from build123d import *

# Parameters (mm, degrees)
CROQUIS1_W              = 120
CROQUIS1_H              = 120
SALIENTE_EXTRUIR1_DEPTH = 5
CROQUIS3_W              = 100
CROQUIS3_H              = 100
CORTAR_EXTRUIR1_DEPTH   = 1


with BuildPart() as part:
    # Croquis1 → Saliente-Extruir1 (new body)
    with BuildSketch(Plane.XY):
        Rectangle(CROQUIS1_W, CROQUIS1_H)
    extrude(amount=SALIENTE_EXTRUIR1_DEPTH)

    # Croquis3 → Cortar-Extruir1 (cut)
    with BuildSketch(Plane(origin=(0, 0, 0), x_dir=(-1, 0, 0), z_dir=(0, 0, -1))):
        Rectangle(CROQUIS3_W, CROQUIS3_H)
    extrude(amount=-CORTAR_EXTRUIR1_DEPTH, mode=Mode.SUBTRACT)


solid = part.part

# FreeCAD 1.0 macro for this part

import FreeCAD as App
import Part
import Sketcher


def add_polygon(sketch, points):
    """Adds a closed chain of lines whose ends are joined by coincident constraints."""
    first, n = sketch.GeometryCount, len(points)
    for a, b in zip(points, points[1:] + points[:1]):
        sketch.addGeometry(Part.LineSegment(App.Vector(*a, 0), App.Vector(*b, 0)), False)
    for i in range(n):
        sketch.addConstraint(Sketcher.Constraint("Coincident", first + i, 2, first + (i + 1) % n, 1))

doc = App.newDocument("Part")
body = doc.addObject("PartDesign::Body", "Body")

# Sketch on XY plane
sketch1 = body.newObject("Sketcher::SketchObject", "Sketch")
sketch1.AttachmentSupport = (doc.getObject("XY_Plane"), [""])
sketch1.MapMode = "FlatFace"
add_polygon(sketch1, [(-60, 60), (-60, -60), (60, -60), (60, 60)])  # lines 0-3
sketch1.addConstraint(Sketcher.Constraint("Vertical", 0))
sketch1.addConstraint(Sketcher.Constraint("Horizontal", 1))
sketch1.addConstraint(Sketcher.Constraint("Vertical", 2))
sketch1.addConstraint(Sketcher.Constraint("Horizontal", 3))
sketch1.addConstraint(Sketcher.Constraint("Symmetric", 0, 2, 2, 2, -1, 1))
sketch1.addConstraint(Sketcher.Constraint("Equal", 3, 0))
sketch1.addConstraint(Sketcher.Constraint("DistanceX", 1, 1, 1, 2, 120.0))
pad1 = body.newObject("PartDesign::Pad", "Pad")
pad1.Profile = sketch1
pad1.Length = 5

# Sketch on XY plane
sketch2 = body.newObject("Sketcher::SketchObject", "Sketch001")
sketch2.AttachmentSupport = (doc.getObject("XY_Plane"), [""])
sketch2.MapMode = "FlatFace"
add_polygon(sketch2, [(50, 50), (50, -50), (-50, -50), (-50, 50)])  # lines 0-3
sketch2.addConstraint(Sketcher.Constraint("Vertical", 0))
sketch2.addConstraint(Sketcher.Constraint("Horizontal", 1))
sketch2.addConstraint(Sketcher.Constraint("Vertical", 2))
sketch2.addConstraint(Sketcher.Constraint("Horizontal", 3))
sketch2.addConstraint(Sketcher.Constraint("Symmetric", 0, 2, 2, 2, -1, 1))
sketch2.addConstraint(Sketcher.Constraint("Equal", 3, 0))
sketch2.addConstraint(Sketcher.Constraint("DistanceX", 1, 2, 1, 1, 100.0))
pocket1 = body.newObject("PartDesign::Pocket", "Pocket")
pocket1.Profile = sketch2
pocket1.Length = 1
pocket1.Reversed = True

doc.recompute()
